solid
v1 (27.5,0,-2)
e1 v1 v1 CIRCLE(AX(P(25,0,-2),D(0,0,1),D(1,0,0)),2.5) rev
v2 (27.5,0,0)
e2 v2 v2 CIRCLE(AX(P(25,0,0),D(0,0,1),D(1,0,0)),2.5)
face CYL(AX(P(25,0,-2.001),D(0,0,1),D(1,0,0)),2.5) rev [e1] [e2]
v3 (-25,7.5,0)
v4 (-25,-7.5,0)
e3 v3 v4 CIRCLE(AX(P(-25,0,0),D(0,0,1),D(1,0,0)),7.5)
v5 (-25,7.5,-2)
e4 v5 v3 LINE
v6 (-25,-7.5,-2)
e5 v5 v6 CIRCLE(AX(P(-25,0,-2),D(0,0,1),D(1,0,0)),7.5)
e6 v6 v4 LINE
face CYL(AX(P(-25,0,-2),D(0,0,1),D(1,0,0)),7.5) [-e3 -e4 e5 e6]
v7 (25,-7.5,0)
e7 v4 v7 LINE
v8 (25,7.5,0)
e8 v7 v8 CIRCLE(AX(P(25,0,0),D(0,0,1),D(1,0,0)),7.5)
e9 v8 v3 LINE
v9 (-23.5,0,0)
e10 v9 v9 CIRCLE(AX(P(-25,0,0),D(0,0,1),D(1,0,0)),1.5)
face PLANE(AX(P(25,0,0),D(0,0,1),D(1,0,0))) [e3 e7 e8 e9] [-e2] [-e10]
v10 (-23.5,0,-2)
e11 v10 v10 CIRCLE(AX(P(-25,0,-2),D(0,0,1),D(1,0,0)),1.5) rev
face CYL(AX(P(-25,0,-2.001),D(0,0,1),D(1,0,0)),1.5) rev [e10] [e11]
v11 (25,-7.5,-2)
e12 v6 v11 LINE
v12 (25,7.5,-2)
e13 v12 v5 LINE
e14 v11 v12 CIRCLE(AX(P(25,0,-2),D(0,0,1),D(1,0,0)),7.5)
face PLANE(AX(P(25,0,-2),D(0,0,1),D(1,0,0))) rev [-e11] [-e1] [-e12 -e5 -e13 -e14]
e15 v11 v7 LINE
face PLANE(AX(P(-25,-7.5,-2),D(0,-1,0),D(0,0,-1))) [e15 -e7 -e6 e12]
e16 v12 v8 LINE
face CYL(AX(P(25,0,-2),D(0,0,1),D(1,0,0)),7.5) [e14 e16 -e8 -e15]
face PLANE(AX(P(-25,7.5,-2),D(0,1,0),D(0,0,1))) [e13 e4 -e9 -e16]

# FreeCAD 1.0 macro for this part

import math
import FreeCAD as App
import Part
import Sketcher
from FreeCAD import Vector

doc = App.newDocument("Part")
params = doc.addObject("Spreadsheet::Sheet", "Params")
for row, (alias, value) in enumerate([
    ("sketch1_radius", "7.5 mm"),
    ("sketch1_width", "50 mm"),
    ("pad1_length", "2 mm"),
    ("sketch2_diameter", "3 mm"),
    ("sketch3_diameter", "5 mm"),
], start=1):
    params.set(f"A{row}", alias)
    params.set(f"B{row}", "=" + value)
    params.setAlias(f"B{row}", alias)

body = doc.addObject("PartDesign::Body", "Body")

sketch1 = body.newObject("Sketcher::SketchObject", "Sketch")
sketch1.AttachmentSupport = (doc.getObject("XY_Plane"), [""])
sketch1.MapMode = "FlatFace"
sketch1.addGeometry([
    Part.LineSegment(Vector(-25, -8, 0), Vector(25, -8, 0)),
    Part.ArcOfCircle(Part.Circle(Vector(25, 0, 0), Vector(0, 0, 1), 8), math.radians(-90), math.radians(90)),
    Part.LineSegment(Vector(25, 8, 0), Vector(-25, 8, 0)),
    Part.ArcOfCircle(Part.Circle(Vector(-25, 0, 0), Vector(0, 0, 1), 8), math.radians(90), math.radians(270)),
], False)
sketch1.addConstraint([
    Sketcher.Constraint("Tangent", 0, 2, 1, 1),
    Sketcher.Constraint("Tangent", 1, 2, 2, 1),
    Sketcher.Constraint("Tangent", 2, 2, 3, 1),
    Sketcher.Constraint("Tangent", 3, 2, 0, 1),
    Sketcher.Constraint("Horizontal", 0),
    Sketcher.Constraint("Horizontal", 2),
    Sketcher.Constraint("Symmetric", 1, 3, 3, 3, -1, 1),
    Sketcher.Constraint("Radius", 1, 7.5),
    Sketcher.Constraint("DistanceX", 0, 1, 0, 2, 50.0),
])
sketch1.setExpression("Constraints[7]", "Params.sketch1_radius")
sketch1.setExpression("Constraints[8]", "Params.sketch1_width")
pad1 = body.newObject("PartDesign::Pad", "Pad")
pad1.Profile = sketch1
pad1.setExpression("Length", "Params.pad1_length")
pad1.Reversed = True

sketch2 = body.newObject("Sketcher::SketchObject", "Sketch001")
sketch2.AttachmentSupport = (doc.getObject("XY_Plane"), [""])
sketch2.MapMode = "FlatFace"
sketch2.addGeometry(Part.Circle(Vector(-25, 0, 0), Vector(0, 0, 1), 1.5), False)
sketch2.addConstraint([
    Sketcher.Constraint("PointOnObject", 0, 3, -1),
    Sketcher.Constraint("Diameter", 0, 3.0),
    Sketcher.Constraint("DistanceX", 0, 3, -1, 1, 25.0),
])
sketch2.setExpression("Constraints[1]", "Params.sketch2_diameter")
pocket1 = body.newObject("PartDesign::Pocket", "Pocket")
pocket1.Profile = sketch2
pocket1.Type = "UpToFirst"

sketch3 = body.newObject("Sketcher::SketchObject", "Sketch002")
sketch3.AttachmentSupport = (doc.getObject("XY_Plane"), [""])
sketch3.MapMode = "FlatFace"
sketch3.addGeometry(Part.Circle(Vector(25, 0, 0), Vector(0, 0, 1), 2.5), False)
sketch3.addConstraint([
    Sketcher.Constraint("PointOnObject", 0, 3, -1),
    Sketcher.Constraint("Diameter", 0, 5.0),
    Sketcher.Constraint("DistanceX", -1, 1, 0, 3, 25.0),
])
sketch3.setExpression("Constraints[1]", "Params.sketch3_diameter")
pocket2 = body.newObject("PartDesign::Pocket", "Pocket001")
pocket2.Profile = sketch3
pocket2.Type = "UpToFirst"

doc.recompute()
